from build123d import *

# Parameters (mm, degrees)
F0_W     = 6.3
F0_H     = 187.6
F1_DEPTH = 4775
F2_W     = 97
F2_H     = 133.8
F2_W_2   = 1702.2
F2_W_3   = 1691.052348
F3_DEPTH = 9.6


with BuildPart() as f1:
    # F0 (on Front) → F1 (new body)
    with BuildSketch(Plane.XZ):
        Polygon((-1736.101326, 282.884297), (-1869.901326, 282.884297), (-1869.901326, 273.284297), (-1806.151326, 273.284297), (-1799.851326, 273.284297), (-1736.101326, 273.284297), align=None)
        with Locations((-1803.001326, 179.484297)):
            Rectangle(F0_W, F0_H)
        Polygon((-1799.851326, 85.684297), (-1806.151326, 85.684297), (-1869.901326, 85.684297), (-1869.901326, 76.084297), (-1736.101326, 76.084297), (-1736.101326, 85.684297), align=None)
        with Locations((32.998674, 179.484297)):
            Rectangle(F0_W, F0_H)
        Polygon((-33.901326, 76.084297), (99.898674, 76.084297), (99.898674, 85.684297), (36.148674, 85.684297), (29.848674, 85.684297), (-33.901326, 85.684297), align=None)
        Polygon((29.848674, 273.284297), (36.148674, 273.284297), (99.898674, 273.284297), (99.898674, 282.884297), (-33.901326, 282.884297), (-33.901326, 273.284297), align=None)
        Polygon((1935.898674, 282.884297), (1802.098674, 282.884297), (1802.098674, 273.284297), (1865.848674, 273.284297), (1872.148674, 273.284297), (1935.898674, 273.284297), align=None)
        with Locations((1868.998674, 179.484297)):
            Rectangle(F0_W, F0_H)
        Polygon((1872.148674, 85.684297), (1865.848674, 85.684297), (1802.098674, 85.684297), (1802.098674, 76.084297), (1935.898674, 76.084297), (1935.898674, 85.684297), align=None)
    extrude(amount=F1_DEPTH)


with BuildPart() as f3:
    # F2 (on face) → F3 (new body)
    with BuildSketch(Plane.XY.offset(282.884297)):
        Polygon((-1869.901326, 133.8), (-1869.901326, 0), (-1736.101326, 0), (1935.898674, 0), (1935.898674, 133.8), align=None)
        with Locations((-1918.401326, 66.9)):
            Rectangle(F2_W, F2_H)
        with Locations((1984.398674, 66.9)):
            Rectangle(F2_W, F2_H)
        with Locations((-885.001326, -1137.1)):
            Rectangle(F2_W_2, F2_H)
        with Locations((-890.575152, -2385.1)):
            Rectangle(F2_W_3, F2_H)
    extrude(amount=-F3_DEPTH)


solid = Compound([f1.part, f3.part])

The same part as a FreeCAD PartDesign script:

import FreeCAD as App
import Part
import Sketcher
from FreeCAD import Vector

doc = App.newDocument("Part")
params = doc.addObject("Spreadsheet::Sheet", "Params")
for row, (alias, value) in enumerate([
    ("sketch1_width", "133.8 mm"),
    ("sketch1_height", "9.6 mm"),
    ("sketch1_height2", "187.6 mm"),
    ("sketch1_width2", "63.75 mm"),
    ("pad1_length", "4775 mm"),
    ("sketch2_width", "3999.8 mm"),
    ("sketch2_width2", "1702.2 mm"),
    ("sketch2_height", "133.8 mm"),
    ("pad2_length", "9.6 mm"),
], start=1):
    params.set(f"A{row}", alias)
    params.set(f"B{row}", "=" + value)
    params.setAlias(f"B{row}", alias)

body = doc.addObject("PartDesign::Body", "Body")
body.AllowCompound = True

# Sketch on XZ plane
sketch1 = doc.addObject("Sketcher::SketchObject", "Sketch")
body.addObject(sketch1)
sketch1.AttachmentSupport = (doc.XZ_Plane, [""])
sketch1.MapMode = "FlatFace"
sketch1.addGeometry(Part.LineSegment(Vector(-1736, 283, 0), Vector(-1870, 283, 0)), False)
sketch1.addGeometry(Part.LineSegment(Vector(-1870, 283, 0), Vector(-1870, 273, 0)), False)
sketch1.addGeometry(Part.LineSegment(Vector(-1870, 273, 0), Vector(-1806, 273, 0)), False)
sketch1.addGeometry(Part.LineSegment(Vector(-1806, 273, 0), Vector(-1806, 86, 0)), False)
sketch1.addGeometry(Part.LineSegment(Vector(-1806, 86, 0), Vector(-1870, 86, 0)), False)
sketch1.addGeometry(Part.LineSegment(Vector(-1870, 86, 0), Vector(-1870, 76, 0)), False)
sketch1.addGeometry(Part.LineSegment(Vector(-1870, 76, 0), Vector(-1736, 76, 0)), False)
sketch1.addGeometry(Part.LineSegment(Vector(-1736, 76, 0), Vector(-1736, 86, 0)), False)
sketch1.addGeometry(Part.LineSegment(Vector(-1736, 86, 0), Vector(-1800, 86, 0)), False)
sketch1.addGeometry(Part.LineSegment(Vector(-1800, 86, 0), Vector(-1800, 273, 0)), False)
sketch1.addGeometry(Part.LineSegment(Vector(-1800, 273, 0), Vector(-1736, 273, 0)), False)
sketch1.addGeometry(Part.LineSegment(Vector(-1736, 273, 0), Vector(-1736, 283, 0)), False)
sketch1.addGeometry(Part.LineSegment(Vector(30, 273, 0), Vector(30, 86, 0)), False)
sketch1.addGeometry(Part.LineSegment(Vector(30, 86, 0), Vector(-34, 86, 0)), False)
sketch1.addGeometry(Part.LineSegment(Vector(-34, 86, 0), Vector(-34, 76, 0)), False)
sketch1.addGeometry(Part.LineSegment(Vector(-34, 76, 0), Vector(100, 76, 0)), False)
sketch1.addGeometry(Part.LineSegment(Vector(100, 76, 0), Vector(100, 86, 0)), False)
sketch1.addGeometry(Part.LineSegment(Vector(100, 86, 0), Vector(36, 86, 0)), False)
sketch1.addGeometry(Part.LineSegment(Vector(36, 86, 0), Vector(36, 273, 0)), False)
sketch1.addGeometry(Part.LineSegment(Vector(36, 273, 0), Vector(100, 273, 0)), False)
sketch1.addGeometry(Part.LineSegment(Vector(100, 273, 0), Vector(100, 283, 0)), False)
sketch1.addGeometry(Part.LineSegment(Vector(100, 283, 0), Vector(-34, 283, 0)), False)
sketch1.addGeometry(Part.LineSegment(Vector(-34, 283, 0), Vector(-34, 273, 0)), False)
sketch1.addGeometry(Part.LineSegment(Vector(-34, 273, 0), Vector(30, 273, 0)), False)
sketch1.addGeometry(Part.LineSegment(Vector(1936, 283, 0), Vector(1802, 283, 0)), False)
sketch1.addGeometry(Part.LineSegment(Vector(1802, 283, 0), Vector(1802, 273, 0)), False)
sketch1.addGeometry(Part.LineSegment(Vector(1802, 273, 0), Vector(1866, 273, 0)), False)
sketch1.addGeometry(Part.LineSegment(Vector(1866, 273, 0), Vector(1866, 86, 0)), False)
sketch1.addGeometry(Part.LineSegment(Vector(1866, 86, 0), Vector(1802, 86, 0)), False)
sketch1.addGeometry(Part.LineSegment(Vector(1802, 86, 0), Vector(1802, 76, 0)), False)
sketch1.addGeometry(Part.LineSegment(Vector(1802, 76, 0), Vector(1936, 76, 0)), False)
sketch1.addGeometry(Part.LineSegment(Vector(1936, 76, 0), Vector(1936, 86, 0)), False)
sketch1.addGeometry(Part.LineSegment(Vector(1936, 86, 0), Vector(1872, 86, 0)), False)
sketch1.addGeometry(Part.LineSegment(Vector(1872, 86, 0), Vector(1872, 273, 0)), False)
sketch1.addGeometry(Part.LineSegment(Vector(1872, 273, 0), Vector(1936, 273, 0)), False)
sketch1.addGeometry(Part.LineSegment(Vector(1936, 273, 0), Vector(1936, 283, 0)), False)
sketch1.addConstraint(Sketcher.Constraint("Coincident", 0, 2, 1, 1))
sketch1.addConstraint(Sketcher.Constraint("Coincident", 1, 2, 2, 1))
sketch1.addConstraint(Sketcher.Constraint("Coincident", 2, 2, 3, 1))
sketch1.addConstraint(Sketcher.Constraint("Coincident", 3, 2, 4, 1))
sketch1.addConstraint(Sketcher.Constraint("Coincident", 4, 2, 5, 1))
sketch1.addConstraint(Sketcher.Constraint("Coincident", 5, 2, 6, 1))
sketch1.addConstraint(Sketcher.Constraint("Coincident", 6, 2, 7, 1))
sketch1.addConstraint(Sketcher.Constraint("Coincident", 7, 2, 8, 1))
sketch1.addConstraint(Sketcher.Constraint("Coincident", 8, 2, 9, 1))
sketch1.addConstraint(Sketcher.Constraint("Coincident", 9, 2, 10, 1))
sketch1.addConstraint(Sketcher.Constraint("Coincident", 10, 2, 11, 1))
sketch1.addConstraint(Sketcher.Constraint("Coincident", 11, 2, 0, 1))
sketch1.addConstraint(Sketcher.Constraint("Coincident", 12, 2, 13, 1))
sketch1.addConstraint(Sketcher.Constraint("Coincident", 13, 2, 14, 1))
sketch1.addConstraint(Sketcher.Constraint("Coincident", 14, 2, 15, 1))
sketch1.addConstraint(Sketcher.Constraint("Coincident", 15, 2, 16, 1))
sketch1.addConstraint(Sketcher.Constraint("Coincident", 16, 2, 17, 1))
sketch1.addConstraint(Sketcher.Constraint("Coincident", 17, 2, 18, 1))
sketch1.addConstraint(Sketcher.Constraint("Coincident", 18, 2, 19, 1))
sketch1.addConstraint(Sketcher.Constraint("Coincident", 19, 2, 20, 1))
sketch1.addConstraint(Sketcher.Constraint("Coincident", 20, 2, 21, 1))
sketch1.addConstraint(Sketcher.Constraint("Coincident", 21, 2, 22, 1))
sketch1.addConstraint(Sketcher.Constraint("Coincident", 22, 2, 23, 1))
sketch1.addConstraint(Sketcher.Constraint("Coincident", 23, 2, 12, 1))
sketch1.addConstraint(Sketcher.Constraint("Coincident", 24, 2, 25, 1))
sketch1.addConstraint(Sketcher.Constraint("Coincident", 25, 2, 26, 1))
sketch1.addConstraint(Sketcher.Constraint("Coincident", 26, 2, 27, 1))
sketch1.addConstraint(Sketcher.Constraint("Coincident", 27, 2, 28, 1))
sketch1.addConstraint(Sketcher.Constraint("Coincident", 28, 2, 29, 1))
sketch1.addConstraint(Sketcher.Constraint("Coincident", 29, 2, 30, 1))
sketch1.addConstraint(Sketcher.Constraint("Coincident", 30, 2, 31, 1))
sketch1.addConstraint(Sketcher.Constraint("Coincident", 31, 2, 32, 1))
sketch1.addConstraint(Sketcher.Constraint("Coincident", 32, 2, 33, 1))
sketch1.addConstraint(Sketcher.Constraint("Coincident", 33, 2, 34, 1))
sketch1.addConstraint(Sketcher.Constraint("Coincident", 34, 2, 35, 1))
sketch1.addConstraint(Sketcher.Constraint("Coincident", 35, 2, 24, 1))
sketch1.addConstraint(Sketcher.Constraint("Horizontal", 0))
sketch1.addConstraint(Sketcher.Constraint("Vertical", 1))
sketch1.addConstraint(Sketcher.Constraint("Horizontal", 2))
sketch1.addConstraint(Sketcher.Constraint("Vertical", 3))
sketch1.addConstraint(Sketcher.Constraint("Horizontal", 4))
sketch1.addConstraint(Sketcher.Constraint("Vertical", 5))
sketch1.addConstraint(Sketcher.Constraint("Horizontal", 6))
sketch1.addConstraint(Sketcher.Constraint("Vertical", 7))
sketch1.addConstraint(Sketcher.Constraint("Horizontal", 8))
sketch1.addConstraint(Sketcher.Constraint("Vertical", 9))
sketch1.addConstraint(Sketcher.Constraint("Horizontal", 10))
sketch1.addConstraint(Sketcher.Constraint("Vertical", 11))
sketch1.addConstraint(Sketcher.Constraint("Vertical", 12))
sketch1.addConstraint(Sketcher.Constraint("Horizontal", 13))
sketch1.addConstraint(Sketcher.Constraint("Vertical", 14))
sketch1.addConstraint(Sketcher.Constraint("Horizontal", 15))
sketch1.addConstraint(Sketcher.Constraint("Vertical", 16))
sketch1.addConstraint(Sketcher.Constraint("Horizontal", 17))
sketch1.addConstraint(Sketcher.Constraint("Vertical", 18))
sketch1.addConstraint(Sketcher.Constraint("Horizontal", 19))
sketch1.addConstraint(Sketcher.Constraint("Vertical", 20))
sketch1.addConstraint(Sketcher.Constraint("Horizontal", 21))
sketch1.addConstraint(Sketcher.Constraint("Vertical", 22))
sketch1.addConstraint(Sketcher.Constraint("Horizontal", 23))
sketch1.addConstraint(Sketcher.Constraint("Horizontal", 24))
sketch1.addConstraint(Sketcher.Constraint("Vertical", 25))
sketch1.addConstraint(Sketcher.Constraint("Horizontal", 26))
sketch1.addConstraint(Sketcher.Constraint("Vertical", 27))
sketch1.addConstraint(Sketcher.Constraint("Horizontal", 28))
sketch1.addConstraint(Sketcher.Constraint("Vertical", 29))
sketch1.addConstraint(Sketcher.Constraint("Horizontal", 30))
sketch1.addConstraint(Sketcher.Constraint("Vertical", 31))
sketch1.addConstraint(Sketcher.Constraint("Horizontal", 32))
sketch1.addConstraint(Sketcher.Constraint("Vertical", 33))
sketch1.addConstraint(Sketcher.Constraint("Horizontal", 34))
sketch1.addConstraint(Sketcher.Constraint("Vertical", 35))
sketch1.addConstraint(Sketcher.Constraint("Horizontal", 4, 2, 7, 2))
sketch1.addConstraint(Sketcher.Constraint("Horizontal", 2, 2, 9, 2))
sketch1.addConstraint(Sketcher.Constraint("Horizontal", 8, 2, 12, 2))
sketch1.addConstraint(Sketcher.Constraint("Horizontal", 6, 2, 14, 2))
sketch1.addConstraint(Sketcher.Constraint("Horizontal", 13, 2, 16, 2))
sketch1.addConstraint(Sketcher.Constraint("Horizontal", 10, 2, 18, 2))
sketch1.addConstraint(Sketcher.Constraint("Horizontal", 11, 2, 20, 2))
sketch1.addConstraint(Sketcher.Constraint("Horizontal", 19, 2, 22, 2))
sketch1.addConstraint(Sketcher.Constraint("Horizontal", 21, 2, 24, 2))
sketch1.addConstraint(Sketcher.Constraint("Horizontal", 23, 2, 25, 2))
sketch1.addConstraint(Sketcher.Constraint("Horizontal", 17, 2, 27, 2))
sketch1.addConstraint(Sketcher.Constraint("Horizontal", 15, 2, 29, 2))
sketch1.addConstraint(Sketcher.Constraint("Horizontal", 28, 2, 31, 2))
sketch1.addConstraint(Sketcher.Constraint("Horizontal", 26, 2, 33, 2))
sketch1.addConstraint(Sketcher.Constraint("Vertical", 1, 2, 4, 2))
sketch1.addConstraint(Sketcher.Constraint("Vertical", 7, 2, 10, 2))
sketch1.addConstraint(Sketcher.Constraint("Vertical", 16, 2, 19, 2))
sketch1.addConstraint(Sketcher.Constraint("Vertical", 14, 2, 21, 2))
sketch1.addConstraint(Sketcher.Constraint("Vertical", 25, 2, 28, 2))
sketch1.addConstraint(Sketcher.Constraint("Vertical", 31, 2, 34, 2))
sketch1.addConstraint(Sketcher.Constraint("Equal", 4, 8))
sketch1.addConstraint(Sketcher.Constraint("Equal", 10, 13))
sketch1.addConstraint(Sketcher.Constraint("Equal", 6, 15))
sketch1.addConstraint(Sketcher.Constraint("Equal", 13, 17))
sketch1.addConstraint(Sketcher.Constraint("Equal", 21, 24))
sketch1.addConstraint(Sketcher.Constraint("Equal", 23, 26))
sketch1.addConstraint(Sketcher.Constraint("Equal", 28, 32))
sketch1.addConstraint(Sketcher.Constraint("Equal", 1, 5))
sketch1.addConstraint(Sketcher.Constraint("DistanceX", 0, 2, 0, 1, 133.8))
sketch1.addConstraint(Sketcher.Constraint("DistanceY", 1, 2, 1, 1, 9.6))
sketch1.addConstraint(Sketcher.Constraint("DistanceY", 3, 2, 3, 1, 187.6))
sketch1.addConstraint(Sketcher.Constraint("DistanceX", 6, 2, 15, 2, 1836.0))
sketch1.addConstraint(Sketcher.Constraint("DistanceX", 2, 1, 2, 2, 63.75))
sketch1.addConstraint(Sketcher.Constraint("DistanceX", 20, 2, 24, 2, 1702.2))
sketch1.addConstraint(Sketcher.Constraint("DistanceX", 0, 2, -1, 1, 1869.901326))
sketch1.addConstraint(Sketcher.Constraint("DistanceY", -1, 1, 0, 2, 282.884297))
sketch1.setExpression("Constraints[100]", "Params.sketch1_width")
sketch1.setExpression("Constraints[101]", "Params.sketch1_height")
sketch1.setExpression("Constraints[102]", "Params.sketch1_height2")
sketch1.setExpression("Constraints[104]", "Params.sketch1_width2")
pad1 = doc.addObject("PartDesign::Pad", "Pad")
body.addObject(pad1)
pad1.Profile = sketch1
pad1.setExpression("Length", "Params.pad1_length")
body2 = doc.addObject("PartDesign::Body", "Body001")
body2.AllowCompound = True

# Sketch on XY plane
sketch2 = doc.addObject("Sketcher::SketchObject", "Sketch001")
body2.addObject(sketch2)
sketch2.AttachmentSupport = (doc.getObject("XY_Plane001"), [""])
sketch2.MapMode = "FlatFace"
sketch2.AttachmentOffset = App.Placement(Vector(0, 0, 282.884297), App.Rotation())
sketch2.addGeometry(Part.LineSegment(Vector(-1967, 134, 0), Vector(-1967, 0, 0)), False)
sketch2.addGeometry(Part.LineSegment(Vector(-1967, 0, 0), Vector(2033, 0, 0)), False)
sketch2.addGeometry(Part.LineSegment(Vector(2033, 0, 0), Vector(2033, 134, 0)), False)
sketch2.addGeometry(Part.LineSegment(Vector(2033, 134, 0), Vector(-1967, 134, 0)), False)
sketch2.addGeometry(Part.LineSegment(Vector(-1736, -1070, 0), Vector(-1736, -1204, 0)), False)
sketch2.addGeometry(Part.LineSegment(Vector(-1736, -1204, 0), Vector(-34, -1204, 0)), False)
sketch2.addGeometry(Part.LineSegment(Vector(-34, -1204, 0), Vector(-34, -1070, 0)), False)
sketch2.addGeometry(Part.LineSegment(Vector(-34, -1070, 0), Vector(-1736, -1070, 0)), False)
sketch2.addGeometry(Part.LineSegment(Vector(-1736, -2318, 0), Vector(-1736, -2452, 0)), False)
sketch2.addGeometry(Part.LineSegment(Vector(-1736, -2452, 0), Vector(-45, -2452, 0)), False)
sketch2.addGeometry(Part.LineSegment(Vector(-45, -2452, 0), Vector(-45, -2318, 0)), False)
sketch2.addGeometry(Part.LineSegment(Vector(-45, -2318, 0), Vector(-1736, -2318, 0)), False)
sketch2.addConstraint(Sketcher.Constraint("Coincident", 0, 2, 1, 1))
sketch2.addConstraint(Sketcher.Constraint("Coincident", 1, 2, 2, 1))
sketch2.addConstraint(Sketcher.Constraint("Coincident", 2, 2, 3, 1))
sketch2.addConstraint(Sketcher.Constraint("Coincident", 3, 2, 0, 1))
sketch2.addConstraint(Sketcher.Constraint("Coincident", 4, 2, 5, 1))
sketch2.addConstraint(Sketcher.Constraint("Coincident", 5, 2, 6, 1))
sketch2.addConstraint(Sketcher.Constraint("Coincident", 6, 2, 7, 1))
sketch2.addConstraint(Sketcher.Constraint("Coincident", 7, 2, 4, 1))
sketch2.addConstraint(Sketcher.Constraint("Coincident", 8, 2, 9, 1))
sketch2.addConstraint(Sketcher.Constraint("Coincident", 9, 2, 10, 1))
sketch2.addConstraint(Sketcher.Constraint("Coincident", 10, 2, 11, 1))
sketch2.addConstraint(Sketcher.Constraint("Coincident", 11, 2, 8, 1))
sketch2.addConstraint(Sketcher.Constraint("Vertical", 0))
sketch2.addConstraint(Sketcher.Constraint("Horizontal", 1))
sketch2.addConstraint(Sketcher.Constraint("Vertical", 2))
sketch2.addConstraint(Sketcher.Constraint("Horizontal", 3))
sketch2.addConstraint(Sketcher.Constraint("Vertical", 4))
sketch2.addConstraint(Sketcher.Constraint("Horizontal", 5))
sketch2.addConstraint(Sketcher.Constraint("Vertical", 6))
sketch2.addConstraint(Sketcher.Constraint("Horizontal", 7))
sketch2.addConstraint(Sketcher.Constraint("Vertical", 8))
sketch2.addConstraint(Sketcher.Constraint("Horizontal", 9))
sketch2.addConstraint(Sketcher.Constraint("Vertical", 10))
sketch2.addConstraint(Sketcher.Constraint("Horizontal", 11))
sketch2.addConstraint(Sketcher.Constraint("PointOnObject", 0, 2, -1))
sketch2.addConstraint(Sketcher.Constraint("Vertical", 7, 2, 8, 2))
sketch2.addConstraint(Sketcher.Constraint("Equal", 2, 4))
sketch2.addConstraint(Sketcher.Constraint("Equal", 6, 8))
sketch2.addConstraint(Sketcher.Constraint("DistanceX", 1, 1, 1, 2, 3999.8))
sketch2.addConstraint(Sketcher.Constraint("DistanceX", 5, 1, 5, 2, 1702.2))
sketch2.addConstraint(Sketcher.Constraint("DistanceY", 0, 2, 0, 1, 133.8))
sketch2.addConstraint(Sketcher.Constraint("DistanceY", 4, 2, -1, 1, 1204.0))
sketch2.addConstraint(Sketcher.Constraint("DistanceY", 8, 2, -1, 1, 2452.0))
sketch2.addConstraint(Sketcher.Constraint("DistanceX", 4, 2, 1, 2, 3769.0))
sketch2.addConstraint(Sketcher.Constraint("DistanceX", 9, 1, 9, 2, 1691.052348))
sketch2.addConstraint(Sketcher.Constraint("DistanceX", 0, 2, -1, 1, 1966.901326))
sketch2.setExpression("Constraints[28]", "Params.sketch2_width")
sketch2.setExpression("Constraints[29]", "Params.sketch2_width2")
sketch2.setExpression("Constraints[30]", "Params.sketch2_height")
pad2 = doc.addObject("PartDesign::Pad", "Pad001")
body2.addObject(pad2)
pad2.Profile = sketch2
pad2.setExpression("Length", "Params.pad2_length")
pad2.Reversed = True

doc.recompute()
